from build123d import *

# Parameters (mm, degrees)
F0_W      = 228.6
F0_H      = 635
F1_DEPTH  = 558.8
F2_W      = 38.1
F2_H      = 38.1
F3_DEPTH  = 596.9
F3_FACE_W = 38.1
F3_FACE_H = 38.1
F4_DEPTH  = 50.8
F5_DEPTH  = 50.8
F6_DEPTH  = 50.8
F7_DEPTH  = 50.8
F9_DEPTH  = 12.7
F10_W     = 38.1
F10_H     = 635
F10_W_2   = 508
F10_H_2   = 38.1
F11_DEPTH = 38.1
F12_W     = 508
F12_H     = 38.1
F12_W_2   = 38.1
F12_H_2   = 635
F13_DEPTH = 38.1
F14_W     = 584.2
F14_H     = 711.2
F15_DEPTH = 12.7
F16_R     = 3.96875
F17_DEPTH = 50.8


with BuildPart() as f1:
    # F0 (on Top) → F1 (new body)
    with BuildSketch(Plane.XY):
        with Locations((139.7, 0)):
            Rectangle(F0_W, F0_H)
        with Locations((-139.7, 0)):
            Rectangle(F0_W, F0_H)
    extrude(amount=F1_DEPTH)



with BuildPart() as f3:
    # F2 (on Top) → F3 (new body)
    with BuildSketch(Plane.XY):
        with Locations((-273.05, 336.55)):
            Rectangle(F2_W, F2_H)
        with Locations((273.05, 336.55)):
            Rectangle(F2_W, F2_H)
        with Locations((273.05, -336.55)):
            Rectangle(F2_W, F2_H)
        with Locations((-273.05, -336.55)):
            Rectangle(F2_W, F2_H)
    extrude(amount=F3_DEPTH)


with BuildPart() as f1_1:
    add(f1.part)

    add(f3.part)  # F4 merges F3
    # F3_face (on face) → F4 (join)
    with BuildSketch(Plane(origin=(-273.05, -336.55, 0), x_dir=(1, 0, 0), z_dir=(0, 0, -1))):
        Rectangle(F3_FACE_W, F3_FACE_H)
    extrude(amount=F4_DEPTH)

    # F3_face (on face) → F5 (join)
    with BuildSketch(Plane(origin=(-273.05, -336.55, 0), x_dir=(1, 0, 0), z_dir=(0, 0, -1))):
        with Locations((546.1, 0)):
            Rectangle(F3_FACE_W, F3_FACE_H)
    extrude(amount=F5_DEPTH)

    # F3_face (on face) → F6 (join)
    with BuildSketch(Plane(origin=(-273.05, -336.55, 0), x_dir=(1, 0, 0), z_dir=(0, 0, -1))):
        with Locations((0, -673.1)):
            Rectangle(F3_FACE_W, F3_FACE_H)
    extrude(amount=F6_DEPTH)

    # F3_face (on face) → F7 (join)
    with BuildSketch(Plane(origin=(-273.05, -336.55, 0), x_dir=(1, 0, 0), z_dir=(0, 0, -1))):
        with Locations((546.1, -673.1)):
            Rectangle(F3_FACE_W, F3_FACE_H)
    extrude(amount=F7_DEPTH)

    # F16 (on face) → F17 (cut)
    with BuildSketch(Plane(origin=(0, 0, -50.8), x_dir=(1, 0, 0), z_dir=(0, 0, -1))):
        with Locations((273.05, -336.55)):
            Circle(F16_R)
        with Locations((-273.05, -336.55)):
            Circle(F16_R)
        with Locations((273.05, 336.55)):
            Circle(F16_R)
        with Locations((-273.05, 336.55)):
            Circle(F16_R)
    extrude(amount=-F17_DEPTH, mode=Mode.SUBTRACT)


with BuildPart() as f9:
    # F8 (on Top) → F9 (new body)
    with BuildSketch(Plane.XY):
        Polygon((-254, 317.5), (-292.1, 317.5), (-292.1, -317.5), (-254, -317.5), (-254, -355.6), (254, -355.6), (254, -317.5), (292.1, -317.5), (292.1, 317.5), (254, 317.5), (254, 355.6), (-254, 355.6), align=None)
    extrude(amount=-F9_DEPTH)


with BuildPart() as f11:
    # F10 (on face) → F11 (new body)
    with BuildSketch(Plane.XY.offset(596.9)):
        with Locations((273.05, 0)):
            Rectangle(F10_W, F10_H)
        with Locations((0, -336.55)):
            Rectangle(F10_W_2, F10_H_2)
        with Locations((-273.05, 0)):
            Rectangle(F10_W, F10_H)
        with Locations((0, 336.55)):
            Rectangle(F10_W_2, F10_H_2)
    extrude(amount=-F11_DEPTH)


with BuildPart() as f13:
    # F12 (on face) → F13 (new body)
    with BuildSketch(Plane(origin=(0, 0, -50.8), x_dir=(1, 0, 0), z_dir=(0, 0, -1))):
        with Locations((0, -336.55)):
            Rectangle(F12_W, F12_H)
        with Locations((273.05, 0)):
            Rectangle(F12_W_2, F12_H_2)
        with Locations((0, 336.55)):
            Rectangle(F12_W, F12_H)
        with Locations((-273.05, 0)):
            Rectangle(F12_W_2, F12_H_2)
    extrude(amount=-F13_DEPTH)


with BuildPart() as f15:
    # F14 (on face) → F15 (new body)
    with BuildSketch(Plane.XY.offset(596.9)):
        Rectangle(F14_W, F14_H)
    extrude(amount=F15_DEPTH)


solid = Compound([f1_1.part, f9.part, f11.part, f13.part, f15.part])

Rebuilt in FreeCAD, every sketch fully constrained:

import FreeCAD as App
import Part
import Sketcher
from FreeCAD import Vector
Q = App.Units.Quantity


def add_polygon(sketch, points):
    """Adds a closed chain of lines whose ends are joined by coincident constraints."""
    first, n = sketch.GeometryCount, len(points)
    for a, b in zip(points, points[1:] + points[:1]):
        sketch.addGeometry(Part.LineSegment(App.Vector(*a, 0), App.Vector(*b, 0)), False)
    for i in range(n):
        sketch.addConstraint(Sketcher.Constraint("Coincident", first + i, 2, first + (i + 1) % n, 1))

doc = App.newDocument("Part")
body = doc.addObject("PartDesign::Body", "Body")
body.AllowCompound = True

sketch1 = body.newObject("Sketcher::SketchObject", "Sketch")
sketch1.AttachmentSupport = (doc.getObject("XY_Plane"), [""])
sketch1.MapMode = "FlatFace"
add_polygon(sketch1, [(25, 318), (25, -318), (254, -318), (254, 318)])
add_polygon(sketch1, [(-254, 318), (-254, -318), (-25, -318), (-25, 318)])
sketch1.addConstraint([
    Sketcher.Constraint("Vertical", 0),
    Sketcher.Constraint("Horizontal", 1),
    Sketcher.Constraint("Vertical", 2),
    Sketcher.Constraint("Horizontal", 3),
    Sketcher.Constraint("Vertical", 4),
    Sketcher.Constraint("Horizontal", 5),
    Sketcher.Constraint("Vertical", 6),
    Sketcher.Constraint("Horizontal", 7),
    Sketcher.Constraint("Symmetric", 2, 2, 4, 2, -1, 1),
    Sketcher.Constraint("Symmetric", 0, 2, 6, 2, -1, 1),
    Sketcher.Constraint("Horizontal", 1, 2, 4, 2),
    Sketcher.Constraint("DistanceX", 1, 1, 1, 2, Q("9 in")),
    Sketcher.Constraint("DistanceY", 0, 2, 0, 1, Q("25 in")),
    Sketcher.Constraint("DistanceX", -1, 1, 0, 2, Q("1 in")),
])
pad1 = body.newObject("PartDesign::Pad", "Pad")
pad1.Profile = sketch1
pad1.Length = Q("22 in")
body2 = doc.addObject("PartDesign::Body", "Body001")
body2.AllowCompound = True

sketch2 = body2.newObject("Sketcher::SketchObject", "Sketch001")
sketch2.AttachmentSupport = (doc.getObject("XY_Plane001"), [""])
sketch2.MapMode = "FlatFace"
add_polygon(sketch2, [(-292, 356), (-292, 318), (-254, 318), (-254, 356)])
add_polygon(sketch2, [(254, 356), (254, 318), (292, 318), (292, 356)])
add_polygon(sketch2, [(254, -318), (254, -356), (292, -356), (292, -318)])
add_polygon(sketch2, [(-292, -318), (-292, -356), (-254, -356), (-254, -318)])
sketch2.addConstraint([
    Sketcher.Constraint("Vertical", 0),
    Sketcher.Constraint("Horizontal", 1),
    Sketcher.Constraint("Vertical", 2),
    Sketcher.Constraint("Horizontal", 3),
    Sketcher.Constraint("Vertical", 4),
    Sketcher.Constraint("Horizontal", 5),
    Sketcher.Constraint("Vertical", 6),
    Sketcher.Constraint("Horizontal", 7),
    Sketcher.Constraint("Vertical", 8),
    Sketcher.Constraint("Horizontal", 9),
    Sketcher.Constraint("Vertical", 10),
    Sketcher.Constraint("Horizontal", 11),
    Sketcher.Constraint("Vertical", 12),
    Sketcher.Constraint("Horizontal", 13),
    Sketcher.Constraint("Vertical", 14),
    Sketcher.Constraint("Horizontal", 15),
    Sketcher.Constraint("Symmetric", 2, 2, 8, 2, -1, 1),
    Sketcher.Constraint("Symmetric", 0, 2, 10, 2, -1, 1),
    Sketcher.Constraint("Symmetric", 6, 2, 12, 2, -1, 1),
    Sketcher.Constraint("Symmetric", 4, 2, 14, 2, -1, 1),
    Sketcher.Constraint("Symmetric", 1, 2, 4, 2, -2),
    Sketcher.Constraint("Symmetric", 3, 2, 6, 2, -2),
    Sketcher.Constraint("Equal", 15, 0),
    Sketcher.Constraint("DistanceX", 1, 1, 1, 2, Q("1.5 in")),
    Sketcher.Constraint("DistanceX", 1, 2, -1, 1, Q("10 in")),
    Sketcher.Constraint("DistanceY", -1, 1, 2, 2, Q("14 in")),
])
pad2 = body2.newObject("PartDesign::Pad", "Pad001")
pad2.Profile = sketch2
pad2.Length = Q("23.5 in")
body.AllowCompound = True
doc.recompute()

boolean = body.newObject("PartDesign::Boolean", "Boolean")
boolean.Type = "Fuse"
boolean.addObjects([body2])

sketch3 = body.newObject("Sketcher::SketchObject", "Sketch002")
sketch3.AttachmentSupport = (doc.getObject("XY_Plane"), [""])
sketch3.MapMode = "FlatFace"
add_polygon(sketch3, [(-292, -356), (-292, -318), (-254, -318), (-254, -356)])
sketch3.addConstraint([
    Sketcher.Constraint("Vertical", 0),
    Sketcher.Constraint("Horizontal", 1),
    Sketcher.Constraint("Vertical", 2),
    Sketcher.Constraint("Horizontal", 3),
    Sketcher.Constraint("Equal", 3, 0),
    Sketcher.Constraint("DistanceX", 1, 1, 1, 2, Q("1.5 in")),
    Sketcher.Constraint("DistanceX", 1, 2, -1, 1, Q("10 in")),
    Sketcher.Constraint("DistanceY", 2, 2, -1, 1, Q("14 in")),
])
pad3 = body.newObject("PartDesign::Pad", "Pad002")
pad3.Profile = sketch3
pad3.Length = Q("2 in")
pad3.Reversed = True

sketch4 = body.newObject("Sketcher::SketchObject", "Sketch003")
sketch4.AttachmentSupport = (doc.getObject("XY_Plane"), [""])
sketch4.MapMode = "FlatFace"
add_polygon(sketch4, [(254, -356), (254, -318), (292, -318), (292, -356)])
sketch4.addConstraint([
    Sketcher.Constraint("Vertical", 0),
    Sketcher.Constraint("Horizontal", 1),
    Sketcher.Constraint("Vertical", 2),
    Sketcher.Constraint("Horizontal", 3),
    Sketcher.Constraint("Equal", 3, 0),
    Sketcher.Constraint("DistanceX", 1, 1, 1, 2, Q("1.5 in")),
    Sketcher.Constraint("DistanceX", -1, 1, 0, 2, Q("10 in")),
    Sketcher.Constraint("DistanceY", 2, 2, -1, 1, Q("14 in")),
])
pad4 = body.newObject("PartDesign::Pad", "Pad003")
pad4.Profile = sketch4
pad4.Length = Q("2 in")
pad4.Reversed = True

sketch5 = body.newObject("Sketcher::SketchObject", "Sketch004")
sketch5.AttachmentSupport = (doc.getObject("XY_Plane"), [""])
sketch5.MapMode = "FlatFace"
add_polygon(sketch5, [(-292, 318), (-292, 356), (-254, 356), (-254, 318)])
sketch5.addConstraint([
    Sketcher.Constraint("Vertical", 0),
    Sketcher.Constraint("Horizontal", 1),
    Sketcher.Constraint("Vertical", 2),
    Sketcher.Constraint("Horizontal", 3),
    Sketcher.Constraint("Equal", 3, 0),
    Sketcher.Constraint("DistanceX", 1, 1, 1, 2, Q("1.5 in")),
    Sketcher.Constraint("DistanceY", -1, 1, 0, 2, Q("14 in")),
    Sketcher.Constraint("DistanceX", 1, 2, -1, 1, Q("10 in")),
])
pad5 = body.newObject("PartDesign::Pad", "Pad004")
pad5.Profile = sketch5
pad5.Length = Q("2 in")
pad5.Reversed = True

sketch6 = body.newObject("Sketcher::SketchObject", "Sketch005")
sketch6.AttachmentSupport = (doc.getObject("XY_Plane"), [""])
sketch6.MapMode = "FlatFace"
add_polygon(sketch6, [(254, 318), (254, 356), (292, 356), (292, 318)])
sketch6.addConstraint([
    Sketcher.Constraint("Vertical", 0),
    Sketcher.Constraint("Horizontal", 1),
    Sketcher.Constraint("Vertical", 2),
    Sketcher.Constraint("Horizontal", 3),
    Sketcher.Constraint("Equal", 3, 0),
    Sketcher.Constraint("DistanceX", 1, 1, 1, 2, Q("1.5 in")),
    Sketcher.Constraint("DistanceX", -1, 1, 0, 2, Q("10 in")),
    Sketcher.Constraint("DistanceY", -1, 1, 0, 2, Q("14 in")),
])
pad6 = body.newObject("PartDesign::Pad", "Pad005")
pad6.Profile = sketch6
pad6.Length = Q("2 in")
pad6.Reversed = True

sketch7 = body.newObject("Sketcher::SketchObject", "Sketch006")
sketch7.AttachmentSupport = (doc.getObject("XY_Plane"), [""])
sketch7.MapMode = "FlatFace"
sketch7.AttachmentOffset = App.Placement(Vector(0, 0, -2 * 25.4), App.Rotation())
sketch7.addGeometry([
    Part.Circle(Vector(273.1, 336.6, 0), Vector(0, 0, 1), 4),
    Part.Circle(Vector(-273.1, 336.6, 0), Vector(0, 0, 1), 4),
    Part.Circle(Vector(273.1, -336.6, 0), Vector(0, 0, 1), 4),
    Part.Circle(Vector(-273.1, -336.6, 0), Vector(0, 0, 1), 4),
], False)
sketch7.addConstraint([
    Sketcher.Constraint("Equal", 0, 1),
    Sketcher.Constraint("Equal", 1, 2),
    Sketcher.Constraint("Equal", 2, 3),
    Sketcher.Constraint("Symmetric", 1, 3, 2, 3, -1, 1),
    Sketcher.Constraint("Symmetric", 0, 3, 3, 3, -1, 1),
    Sketcher.Constraint("Symmetric", 0, 3, 1, 3, -2),
    Sketcher.Constraint("Diameter", 0, Q("0.3125 in")),
    Sketcher.Constraint("DistanceX", 1, 3, 0, 3, Q("21.5 in")),
    Sketcher.Constraint("DistanceY", 2, 3, 0, 3, Q("26.5 in")),
])
pocket1 = body.newObject("PartDesign::Pocket", "Pocket")
pocket1.Profile = sketch7
pocket1.Length = Q("2 in")
pocket1.Reversed = True
body3 = doc.addObject("PartDesign::Body", "Body002")

sketch8 = body3.newObject("Sketcher::SketchObject", "Sketch007")
sketch8.AttachmentSupport = (doc.getObject("XY_Plane002"), [""])
sketch8.MapMode = "FlatFace"
add_polygon(sketch8, [(-254, 318), (-292, 318), (-292, -318), (-254, -318), (-254, -356), (254, -356), (254, -318), (292, -318), (292, 318), (254, 318), (254, 356), (-254, 356)])
sketch8.addConstraint([
    Sketcher.Constraint("Horizontal", 0),
    Sketcher.Constraint("Vertical", 1),
    Sketcher.Constraint("Horizontal", 2),
    Sketcher.Constraint("Vertical", 3),
    Sketcher.Constraint("Horizontal", 4),
    Sketcher.Constraint("Vertical", 5),
    Sketcher.Constraint("Horizontal", 6),
    Sketcher.Constraint("Vertical", 7),
    Sketcher.Constraint("Horizontal", 8),
    Sketcher.Constraint("Vertical", 9),
    Sketcher.Constraint("Horizontal", 10),
    Sketcher.Constraint("Vertical", 11),
    Sketcher.Constraint("Symmetric", 0, 2, 6, 2, -1, 1),
    Sketcher.Constraint("Symmetric", 2, 2, 8, 2, -1, 1),
    Sketcher.Constraint("Symmetric", 4, 2, 10, 2, -1, 1),
    Sketcher.Constraint("Symmetric", 2, 2, 5, 2, -2),
    Sketcher.Constraint("Equal", 8, 3),
    Sketcher.Constraint("DistanceX", 4, 1, 4, 2, Q("20 in")),
    Sketcher.Constraint("DistanceY", 1, 2, 1, 1, Q("25 in")),
    Sketcher.Constraint("DistanceX", 0, 2, 0, 1, Q("1.5 in")),
])
pad7 = body3.newObject("PartDesign::Pad", "Pad006")
pad7.Profile = sketch8
pad7.Length = Q("0.5 in")
pad7.Reversed = True
body4 = doc.addObject("PartDesign::Body", "Body003")
body4.AllowCompound = True

sketch9 = body4.newObject("Sketcher::SketchObject", "Sketch008")
sketch9.AttachmentSupport = (doc.getObject("XY_Plane003"), [""])
sketch9.MapMode = "FlatFace"
sketch9.AttachmentOffset = App.Placement(Vector(0, 0, 23.5 * 25.4), App.Rotation())
add_polygon(sketch9, [(254, 318), (254, -318), (292, -318), (292, 318)])
add_polygon(sketch9, [(-254, -318), (-254, -356), (254, -356), (254, -318)])
add_polygon(sketch9, [(-292, 318), (-292, -318), (-254, -318), (-254, 318)])
add_polygon(sketch9, [(-254, 356), (-254, 318), (254, 318), (254, 356)])
sketch9.addConstraint([
    Sketcher.Constraint("Vertical", 0),
    Sketcher.Constraint("Horizontal", 1),
    Sketcher.Constraint("Vertical", 2),
    Sketcher.Constraint("Horizontal", 3),
    Sketcher.Constraint("Vertical", 4),
    Sketcher.Constraint("Horizontal", 5),
    Sketcher.Constraint("Vertical", 6),
    Sketcher.Constraint("Horizontal", 7),
    Sketcher.Constraint("Vertical", 8),
    Sketcher.Constraint("Horizontal", 9),
    Sketcher.Constraint("Vertical", 10),
    Sketcher.Constraint("Horizontal", 11),
    Sketcher.Constraint("Vertical", 12),
    Sketcher.Constraint("Horizontal", 13),
    Sketcher.Constraint("Vertical", 14),
    Sketcher.Constraint("Horizontal", 15),
    Sketcher.Constraint("Coincident", 6, 2, 0, 2),
    Sketcher.Constraint("Coincident", 9, 2, 7, 2),
    Sketcher.Constraint("Coincident", 12, 2, 10, 2),
    Sketcher.Constraint("Coincident", 13, 2, 3, 2),
    Sketcher.Constraint("Symmetric", 3, 2, 7, 2, -1, 1),
    Sketcher.Constraint("Equal", 3, 9),
    Sketcher.Constraint("Equal", 11, 4),
    Sketcher.Constraint("Equal", 6, 12),
    Sketcher.Constraint("DistanceX", 5, 1, 5, 2, Q("20 in")),
    Sketcher.Constraint("DistanceY", 0, 2, 0, 1, Q("25 in")),
    Sketcher.Constraint("DistanceX", 1, 1, 1, 2, Q("1.5 in")),
])
pad8 = body4.newObject("PartDesign::Pad", "Pad007")
pad8.Profile = sketch9
pad8.Length = Q("1.5 in")
pad8.Reversed = True
body5 = doc.addObject("PartDesign::Body", "Body004")
body5.AllowCompound = True

sketch10 = body5.newObject("Sketcher::SketchObject", "Sketch009")
sketch10.AttachmentSupport = (doc.getObject("XY_Plane004"), [""])
sketch10.MapMode = "FlatFace"
sketch10.AttachmentOffset = App.Placement(Vector(0, 0, -2 * 25.4), App.Rotation())
add_polygon(sketch10, [(-254, 318), (-254, 356), (254, 356), (254, 318)])
add_polygon(sketch10, [(254, -318), (254, 318), (292, 318), (292, -318)])
add_polygon(sketch10, [(-254, -356), (-254, -318), (254, -318), (254, -356)])
add_polygon(sketch10, [(-292, -318), (-292, 318), (-254, 318), (-254, -318)])
sketch10.addConstraint([
    Sketcher.Constraint("Vertical", 0),
    Sketcher.Constraint("Horizontal", 1),
    Sketcher.Constraint("Vertical", 2),
    Sketcher.Constraint("Horizontal", 3),
    Sketcher.Constraint("Vertical", 4),
    Sketcher.Constraint("Horizontal", 5),
    Sketcher.Constraint("Vertical", 6),
    Sketcher.Constraint("Horizontal", 7),
    Sketcher.Constraint("Vertical", 8),
    Sketcher.Constraint("Horizontal", 9),
    Sketcher.Constraint("Vertical", 10),
    Sketcher.Constraint("Horizontal", 11),
    Sketcher.Constraint("Vertical", 12),
    Sketcher.Constraint("Horizontal", 13),
    Sketcher.Constraint("Vertical", 14),
    Sketcher.Constraint("Horizontal", 15),
    Sketcher.Constraint("Coincident", 4, 2, 2, 2),
    Sketcher.Constraint("Coincident", 9, 2, 7, 2),
    Sketcher.Constraint("Coincident", 13, 2, 3, 2),
    Sketcher.Constraint("Coincident", 14, 2, 8, 2),
    Sketcher.Constraint("Symmetric", 3, 2, 7, 2, -1, 1),
    Sketcher.Constraint("Equal", 7, 13),
    Sketcher.Constraint("Equal", 15, 0),
    Sketcher.Constraint("Equal", 2, 8),
    Sketcher.Constraint("DistanceX", 1, 1, 1, 2, Q("20 in")),
    Sketcher.Constraint("DistanceY", 4, 1, 4, 2, Q("25 in")),
    Sketcher.Constraint("DistanceX", 5, 1, 5, 2, Q("1.5 in")),
])
pad9 = body5.newObject("PartDesign::Pad", "Pad008")
pad9.Profile = sketch10
pad9.Length = Q("1.5 in")
body6 = doc.addObject("PartDesign::Body", "Body005")

sketch11 = body6.newObject("Sketcher::SketchObject", "Sketch010")
sketch11.AttachmentSupport = (doc.getObject("XY_Plane005"), [""])
sketch11.MapMode = "FlatFace"
sketch11.AttachmentOffset = App.Placement(Vector(0, 0, 23.5 * 25.4), App.Rotation())
add_polygon(sketch11, [(-292, 356), (-292, -356), (292, -356), (292, 356)])
sketch11.addConstraint([
    Sketcher.Constraint("Vertical", 0),
    Sketcher.Constraint("Horizontal", 1),
    Sketcher.Constraint("Vertical", 2),
    Sketcher.Constraint("Horizontal", 3),
    Sketcher.Constraint("Symmetric", 0, 2, 2, 2, -1, 1),
    Sketcher.Constraint("DistanceX", 1, 1, 1, 2, Q("23 in")),
    Sketcher.Constraint("DistanceY", 0, 2, 0, 1, Q("28 in")),
])
pad10 = body6.newObject("PartDesign::Pad", "Pad009")
pad10.Profile = sketch11
pad10.Length = Q("0.5 in")

doc.recompute()
